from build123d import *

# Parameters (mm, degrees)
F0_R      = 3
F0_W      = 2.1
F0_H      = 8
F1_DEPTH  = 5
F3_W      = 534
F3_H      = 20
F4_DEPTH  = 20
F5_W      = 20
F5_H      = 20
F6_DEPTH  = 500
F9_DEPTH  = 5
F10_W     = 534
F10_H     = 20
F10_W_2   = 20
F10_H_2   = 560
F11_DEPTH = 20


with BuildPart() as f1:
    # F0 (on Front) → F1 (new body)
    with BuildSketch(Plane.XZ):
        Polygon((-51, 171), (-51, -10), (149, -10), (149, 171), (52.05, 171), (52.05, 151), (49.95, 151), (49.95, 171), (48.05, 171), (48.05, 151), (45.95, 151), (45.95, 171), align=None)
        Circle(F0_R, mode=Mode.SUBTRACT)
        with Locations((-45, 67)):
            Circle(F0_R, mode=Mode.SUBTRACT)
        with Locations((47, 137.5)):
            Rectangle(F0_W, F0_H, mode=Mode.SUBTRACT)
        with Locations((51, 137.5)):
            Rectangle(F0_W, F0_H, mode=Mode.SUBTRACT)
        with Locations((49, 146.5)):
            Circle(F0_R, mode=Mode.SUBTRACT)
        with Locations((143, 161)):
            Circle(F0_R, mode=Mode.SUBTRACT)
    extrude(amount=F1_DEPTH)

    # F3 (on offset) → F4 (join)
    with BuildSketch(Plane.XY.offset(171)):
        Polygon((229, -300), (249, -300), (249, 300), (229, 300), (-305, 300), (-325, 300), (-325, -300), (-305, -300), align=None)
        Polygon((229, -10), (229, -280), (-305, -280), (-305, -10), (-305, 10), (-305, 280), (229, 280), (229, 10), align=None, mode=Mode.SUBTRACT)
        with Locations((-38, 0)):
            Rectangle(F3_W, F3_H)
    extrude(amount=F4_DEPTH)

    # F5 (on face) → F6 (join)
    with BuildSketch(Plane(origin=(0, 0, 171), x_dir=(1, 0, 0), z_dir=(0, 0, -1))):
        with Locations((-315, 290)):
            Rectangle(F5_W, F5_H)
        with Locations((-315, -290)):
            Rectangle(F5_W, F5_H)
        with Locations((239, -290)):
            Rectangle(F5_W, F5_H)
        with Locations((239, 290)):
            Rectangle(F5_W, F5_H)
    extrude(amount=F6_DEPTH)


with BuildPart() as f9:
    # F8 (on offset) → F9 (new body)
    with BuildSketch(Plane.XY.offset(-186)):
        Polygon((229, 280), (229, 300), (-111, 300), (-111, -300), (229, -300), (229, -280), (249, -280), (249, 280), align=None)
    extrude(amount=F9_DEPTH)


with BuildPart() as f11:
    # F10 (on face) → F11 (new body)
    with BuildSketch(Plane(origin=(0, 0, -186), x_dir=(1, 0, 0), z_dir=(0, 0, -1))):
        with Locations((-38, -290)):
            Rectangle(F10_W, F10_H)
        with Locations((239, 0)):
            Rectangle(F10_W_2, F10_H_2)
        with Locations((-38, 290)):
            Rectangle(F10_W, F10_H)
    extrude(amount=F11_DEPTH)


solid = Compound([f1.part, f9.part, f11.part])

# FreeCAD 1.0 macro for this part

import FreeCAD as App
import Part
import Sketcher

doc = App.newDocument("Part")
body = doc.addObject("PartDesign::Body", "Body")

# Sketch on XZ plane
sketch1 = body.newObject("Sketcher::SketchObject", "Sketch")
sketch1.AttachmentSupport = (doc.getObject("XZ_Plane"), [""])
sketch1.MapMode = "FlatFace"
sketch1.addGeometry(Part.LineSegment(App.Vector(-51, 171, 0), App.Vector(-51, -10, 0)), False)
sketch1.addGeometry(Part.LineSegment(App.Vector(-51, -10, 0), App.Vector(149, -10, 0)), False)
sketch1.addGeometry(Part.LineSegment(App.Vector(149, -10, 0), App.Vector(149, 171, 0)), False)
sketch1.addGeometry(Part.LineSegment(App.Vector(149, 171, 0), App.Vector(52.05, 171, 0)), False)
sketch1.addGeometry(Part.LineSegment(App.Vector(52.05, 171, 0), App.Vector(52.05, 151, 0)), False)
sketch1.addGeometry(Part.LineSegment(App.Vector(52.05, 151, 0), App.Vector(49.95, 151, 0)), False)
sketch1.addGeometry(Part.LineSegment(App.Vector(49.95, 151, 0), App.Vector(49.95, 171, 0)), False)
sketch1.addGeometry(Part.LineSegment(App.Vector(49.95, 171, 0), App.Vector(48.05, 171, 0)), False)
sketch1.addGeometry(Part.LineSegment(App.Vector(48.05, 171, 0), App.Vector(48.05, 151, 0)), False)
sketch1.addGeometry(Part.LineSegment(App.Vector(48.05, 151, 0), App.Vector(45.95, 151, 0)), False)
sketch1.addGeometry(Part.LineSegment(App.Vector(45.95, 151, 0), App.Vector(45.95, 171, 0)), False)
sketch1.addGeometry(Part.LineSegment(App.Vector(45.95, 171, 0), App.Vector(-51, 171, 0)), False)
sketch1.addGeometry(Part.Circle(App.Vector(0, 0, 0), App.Vector(0, 0, 1), 3), False)
sketch1.addGeometry(Part.Circle(App.Vector(-45, 67, 0), App.Vector(0, 0, 1), 3), False)
sketch1.addGeometry(Part.LineSegment(App.Vector(48.05, 133.5, 0), App.Vector(45.95, 133.5, 0)), False)
sketch1.addGeometry(Part.LineSegment(App.Vector(45.95, 133.5, 0), App.Vector(45.95, 141.5, 0)), False)
sketch1.addGeometry(Part.LineSegment(App.Vector(45.95, 141.5, 0), App.Vector(48.05, 141.5, 0)), False)
sketch1.addGeometry(Part.LineSegment(App.Vector(48.05, 141.5, 0), App.Vector(48.05, 133.5, 0)), False)
sketch1.addGeometry(Part.LineSegment(App.Vector(52.05, 133.5, 0), App.Vector(49.95, 133.5, 0)), False)
sketch1.addGeometry(Part.LineSegment(App.Vector(49.95, 133.5, 0), App.Vector(49.95, 141.5, 0)), False)
sketch1.addGeometry(Part.LineSegment(App.Vector(49.95, 141.5, 0), App.Vector(52.05, 141.5, 0)), False)
sketch1.addGeometry(Part.LineSegment(App.Vector(52.05, 141.5, 0), App.Vector(52.05, 133.5, 0)), False)
sketch1.addGeometry(Part.Circle(App.Vector(49, 146.5, 0), App.Vector(0, 0, 1), 3), False)
sketch1.addGeometry(Part.Circle(App.Vector(143, 161, 0), App.Vector(0, 0, 1), 3), False)
sketch1.addConstraint(Sketcher.Constraint("Coincident", 0, 2, 1, 1))
sketch1.addConstraint(Sketcher.Constraint("Coincident", 1, 2, 2, 1))
sketch1.addConstraint(Sketcher.Constraint("Coincident", 2, 2, 3, 1))
sketch1.addConstraint(Sketcher.Constraint("Coincident", 3, 2, 4, 1))
sketch1.addConstraint(Sketcher.Constraint("Coincident", 4, 2, 5, 1))
sketch1.addConstraint(Sketcher.Constraint("Coincident", 5, 2, 6, 1))
sketch1.addConstraint(Sketcher.Constraint("Coincident", 6, 2, 7, 1))
sketch1.addConstraint(Sketcher.Constraint("Coincident", 7, 2, 8, 1))
sketch1.addConstraint(Sketcher.Constraint("Coincident", 8, 2, 9, 1))
sketch1.addConstraint(Sketcher.Constraint("Coincident", 9, 2, 10, 1))
sketch1.addConstraint(Sketcher.Constraint("Coincident", 10, 2, 11, 1))
sketch1.addConstraint(Sketcher.Constraint("Coincident", 11, 2, 0, 1))
sketch1.addConstraint(Sketcher.Constraint("Coincident", 14, 2, 15, 1))
sketch1.addConstraint(Sketcher.Constraint("Coincident", 15, 2, 16, 1))
sketch1.addConstraint(Sketcher.Constraint("Coincident", 16, 2, 17, 1))
sketch1.addConstraint(Sketcher.Constraint("Coincident", 17, 2, 14, 1))
sketch1.addConstraint(Sketcher.Constraint("Coincident", 18, 2, 19, 1))
sketch1.addConstraint(Sketcher.Constraint("Coincident", 19, 2, 20, 1))
sketch1.addConstraint(Sketcher.Constraint("Coincident", 20, 2, 21, 1))
sketch1.addConstraint(Sketcher.Constraint("Coincident", 21, 2, 18, 1))
sketch1.addConstraint(Sketcher.Constraint("Vertical", 0))
sketch1.addConstraint(Sketcher.Constraint("Horizontal", 1))
sketch1.addConstraint(Sketcher.Constraint("Vertical", 2))
sketch1.addConstraint(Sketcher.Constraint("Horizontal", 3))
sketch1.addConstraint(Sketcher.Constraint("Vertical", 4))
sketch1.addConstraint(Sketcher.Constraint("Horizontal", 5))
sketch1.addConstraint(Sketcher.Constraint("Vertical", 6))
sketch1.addConstraint(Sketcher.Constraint("Horizontal", 7))
sketch1.addConstraint(Sketcher.Constraint("Vertical", 8))
sketch1.addConstraint(Sketcher.Constraint("Horizontal", 9))
sketch1.addConstraint(Sketcher.Constraint("Vertical", 10))
sketch1.addConstraint(Sketcher.Constraint("Horizontal", 11))
sketch1.addConstraint(Sketcher.Constraint("Horizontal", 14))
sketch1.addConstraint(Sketcher.Constraint("Vertical", 15))
sketch1.addConstraint(Sketcher.Constraint("Horizontal", 16))
sketch1.addConstraint(Sketcher.Constraint("Vertical", 17))
sketch1.addConstraint(Sketcher.Constraint("Horizontal", 18))
sketch1.addConstraint(Sketcher.Constraint("Vertical", 19))
sketch1.addConstraint(Sketcher.Constraint("Horizontal", 20))
sketch1.addConstraint(Sketcher.Constraint("Vertical", 21))
sketch1.addConstraint(Sketcher.Constraint("Coincident", 12, 3, -1, 1))
sketch1.addConstraint(Sketcher.Constraint("Equal", 12, 13))
sketch1.addConstraint(Sketcher.Constraint("Equal", 13, 22))
sketch1.addConstraint(Sketcher.Constraint("Equal", 22, 23))
sketch1.addConstraint(Sketcher.Constraint("Horizontal", 3, 2, 6, 2))
sketch1.addConstraint(Sketcher.Constraint("Horizontal", 5, 2, 8, 2))
sketch1.addConstraint(Sketcher.Constraint("Horizontal", 7, 2, 10, 2))
sketch1.addConstraint(Sketcher.Constraint("Horizontal", 17, 2, 18, 2))
sketch1.addConstraint(Sketcher.Constraint("Horizontal", 16, 2, 19, 2))
sketch1.addConstraint(Sketcher.Constraint("Vertical", 10, 2, 14, 2))
sketch1.addConstraint(Sketcher.Constraint("Vertical", 8, 2, 16, 2))
sketch1.addConstraint(Sketcher.Constraint("Vertical", 6, 2, 18, 2))
sketch1.addConstraint(Sketcher.Constraint("Vertical", 4, 2, 20, 2))
sketch1.addConstraint(Sketcher.Constraint("Equal", 5, 9))
sketch1.addConstraint(Sketcher.Constraint("Equal", 3, 11))
sketch1.addConstraint(Sketcher.Constraint("Diameter", 12, 6.0))
sketch1.addConstraint(Sketcher.Constraint("DistanceX", 1, 1, 1, 2, 200.0))
sketch1.addConstraint(Sketcher.Constraint("DistanceY", 0, 2, 0, 1, 181.0))
sketch1.addConstraint(Sketcher.Constraint("DistanceY", 4, 2, 4, 1, 20.0))
sketch1.addConstraint(Sketcher.Constraint("DistanceY", 15, 1, 15, 2, 8.0))
sketch1.addConstraint(Sketcher.Constraint("DistanceX", 5, 2, 5, 1, 2.1))
sketch1.addConstraint(Sketcher.Constraint("DistanceX", 7, 2, 7, 1, 1.9))
sketch1.addConstraint(Sketcher.Constraint("DistanceX", 13, 3, -1, 1, 45.0))
sketch1.addConstraint(Sketcher.Constraint("DistanceY", -1, 1, 13, 3, 67.0))
sketch1.addConstraint(Sketcher.Constraint("DistanceX", -1, 1, 22, 3, 49.0))
sketch1.addConstraint(Sketcher.Constraint("DistanceX", -1, 1, 23, 3, 143.0))
sketch1.addConstraint(Sketcher.Constraint("DistanceY", -1, 1, 23, 3, 161.0))
sketch1.addConstraint(Sketcher.Constraint("DistanceX", 0, 2, -1, 1, 51.0))
sketch1.addConstraint(Sketcher.Constraint("DistanceY", 0, 2, -1, 1, 10.0))
sketch1.addConstraint(Sketcher.Constraint("DistanceY", 14, 2, 22, 3, 13.0))
sketch1.addConstraint(Sketcher.Constraint("DistanceY", -1, 1, 22, 3, 146.5))
pad1 = body.newObject("PartDesign::Pad", "Pad")
pad1.Profile = sketch1
pad1.Length = 5

# Sketch on XY plane
sketch2 = body.newObject("Sketcher::SketchObject", "Sketch001")
sketch2.AttachmentSupport = (doc.getObject("XY_Plane"), [""])
sketch2.MapMode = "FlatFace"
sketch2.AttachmentOffset = App.Placement(App.Vector(0, 0, 171), App.Rotation())
sketch2.addGeometry(Part.LineSegment(App.Vector(249, -300, 0), App.Vector(249, 300, 0)), False)
sketch2.addGeometry(Part.LineSegment(App.Vector(249, 300, 0), App.Vector(-325, 300, 0)), False)
sketch2.addGeometry(Part.LineSegment(App.Vector(-325, 300, 0), App.Vector(-325, -300, 0)), False)
sketch2.addGeometry(Part.LineSegment(App.Vector(-325, -300, 0), App.Vector(249, -300, 0)), False)
sketch2.addGeometry(Part.LineSegment(App.Vector(229, 280, 0), App.Vector(229, 10, 0)), False)
sketch2.addGeometry(Part.LineSegment(App.Vector(229, 10, 0), App.Vector(-305, 10, 0)), False)
sketch2.addGeometry(Part.LineSegment(App.Vector(-305, 10, 0), App.Vector(-305, 280, 0)), False)
sketch2.addGeometry(Part.LineSegment(App.Vector(-305, 280, 0), App.Vector(229, 280, 0)), False)
sketch2.addGeometry(Part.LineSegment(App.Vector(229, -10, 0), App.Vector(229, -280, 0)), False)
sketch2.addGeometry(Part.LineSegment(App.Vector(229, -280, 0), App.Vector(-305, -280, 0)), False)
sketch2.addGeometry(Part.LineSegment(App.Vector(-305, -280, 0), App.Vector(-305, -10, 0)), False)
sketch2.addGeometry(Part.LineSegment(App.Vector(-305, -10, 0), App.Vector(229, -10, 0)), False)
sketch2.addConstraint(Sketcher.Constraint("Coincident", 0, 2, 1, 1))
sketch2.addConstraint(Sketcher.Constraint("Coincident", 1, 2, 2, 1))
sketch2.addConstraint(Sketcher.Constraint("Coincident", 2, 2, 3, 1))
sketch2.addConstraint(Sketcher.Constraint("Coincident", 3, 2, 0, 1))
sketch2.addConstraint(Sketcher.Constraint("Coincident", 4, 2, 5, 1))
sketch2.addConstraint(Sketcher.Constraint("Coincident", 5, 2, 6, 1))
sketch2.addConstraint(Sketcher.Constraint("Coincident", 6, 2, 7, 1))
sketch2.addConstraint(Sketcher.Constraint("Coincident", 7, 2, 4, 1))
sketch2.addConstraint(Sketcher.Constraint("Coincident", 8, 2, 9, 1))
sketch2.addConstraint(Sketcher.Constraint("Coincident", 9, 2, 10, 1))
sketch2.addConstraint(Sketcher.Constraint("Coincident", 10, 2, 11, 1))
sketch2.addConstraint(Sketcher.Constraint("Coincident", 11, 2, 8, 1))
sketch2.addConstraint(Sketcher.Constraint("Vertical", 0))
sketch2.addConstraint(Sketcher.Constraint("Horizontal", 1))
sketch2.addConstraint(Sketcher.Constraint("Vertical", 2))
sketch2.addConstraint(Sketcher.Constraint("Horizontal", 3))
sketch2.addConstraint(Sketcher.Constraint("Vertical", 4))
sketch2.addConstraint(Sketcher.Constraint("Horizontal", 5))
sketch2.addConstraint(Sketcher.Constraint("Vertical", 6))
sketch2.addConstraint(Sketcher.Constraint("Horizontal", 7))
sketch2.addConstraint(Sketcher.Constraint("Vertical", 8))
sketch2.addConstraint(Sketcher.Constraint("Horizontal", 9))
sketch2.addConstraint(Sketcher.Constraint("Vertical", 10))
sketch2.addConstraint(Sketcher.Constraint("Horizontal", 11))
sketch2.addConstraint(Sketcher.Constraint("Symmetric", 7, 2, 8, 2, -1))
sketch2.addConstraint(Sketcher.Constraint("Symmetric", 5, 2, 10, 2, -1))
sketch2.addConstraint(Sketcher.Constraint("DistanceX", 1, 2, 1, 1, 574.0))
sketch2.addConstraint(Sketcher.Constraint("DistanceX", 5, 2, 5, 1, 534.0))
sketch2.addConstraint(Sketcher.Constraint("DistanceY", 0, 1, 0, 2, 600.0))
sketch2.addConstraint(Sketcher.Constraint("DistanceY", 4, 2, 4, 1, 270.0))
sketch2.addConstraint(Sketcher.Constraint("DistanceX", -1, 1, 0, 2, 249.0))
sketch2.addConstraint(Sketcher.Constraint("DistanceY", -1, 1, 0, 2, 300.0))
sketch2.addConstraint(Sketcher.Constraint("DistanceX", -1, 1, 4, 2, 229.0))
sketch2.addConstraint(Sketcher.Constraint("DistanceY", -1, 1, 4, 2, 10.0))
pad2 = body.newObject("PartDesign::Pad", "Pad001")
pad2.Profile = sketch2
pad2.Length = 20

# Sketch on XY plane
sketch3 = body.newObject("Sketcher::SketchObject", "Sketch002")
sketch3.AttachmentSupport = (doc.getObject("XY_Plane"), [""])
sketch3.MapMode = "FlatFace"
sketch3.AttachmentOffset = App.Placement(App.Vector(0, 0, 171), App.Rotation())
sketch3.addGeometry(Part.LineSegment(App.Vector(-325, -300, 0), App.Vector(-325, -280, 0)), False)
sketch3.addGeometry(Part.LineSegment(App.Vector(-325, -280, 0), App.Vector(-305, -280, 0)), False)
sketch3.addGeometry(Part.LineSegment(App.Vector(-305, -280, 0), App.Vector(-305, -300, 0)), False)
sketch3.addGeometry(Part.LineSegment(App.Vector(-305, -300, 0), App.Vector(-325, -300, 0)), False)
sketch3.addGeometry(Part.LineSegment(App.Vector(-325, 280, 0), App.Vector(-325, 300, 0)), False)
sketch3.addGeometry(Part.LineSegment(App.Vector(-325, 300, 0), App.Vector(-305, 300, 0)), False)
sketch3.addGeometry(Part.LineSegment(App.Vector(-305, 300, 0), App.Vector(-305, 280, 0)), False)
sketch3.addGeometry(Part.LineSegment(App.Vector(-305, 280, 0), App.Vector(-325, 280, 0)), False)
sketch3.addGeometry(Part.LineSegment(App.Vector(229, 280, 0), App.Vector(229, 300, 0)), False)
sketch3.addGeometry(Part.LineSegment(App.Vector(229, 300, 0), App.Vector(249, 300, 0)), False)
sketch3.addGeometry(Part.LineSegment(App.Vector(249, 300, 0), App.Vector(249, 280, 0)), False)
sketch3.addGeometry(Part.LineSegment(App.Vector(249, 280, 0), App.Vector(229, 280, 0)), False)
sketch3.addGeometry(Part.LineSegment(App.Vector(229, -300, 0), App.Vector(229, -280, 0)), False)
sketch3.addGeometry(Part.LineSegment(App.Vector(229, -280, 0), App.Vector(249, -280, 0)), False)
sketch3.addGeometry(Part.LineSegment(App.Vector(249, -280, 0), App.Vector(249, -300, 0)), False)
sketch3.addGeometry(Part.LineSegment(App.Vector(249, -300, 0), App.Vector(229, -300, 0)), False)
sketch3.addConstraint(Sketcher.Constraint("Coincident", 0, 2, 1, 1))
sketch3.addConstraint(Sketcher.Constraint("Coincident", 1, 2, 2, 1))
sketch3.addConstraint(Sketcher.Constraint("Coincident", 2, 2, 3, 1))
sketch3.addConstraint(Sketcher.Constraint("Coincident", 3, 2, 0, 1))
sketch3.addConstraint(Sketcher.Constraint("Coincident", 4, 2, 5, 1))
sketch3.addConstraint(Sketcher.Constraint("Coincident", 5, 2, 6, 1))
sketch3.addConstraint(Sketcher.Constraint("Coincident", 6, 2, 7, 1))
sketch3.addConstraint(Sketcher.Constraint("Coincident", 7, 2, 4, 1))
sketch3.addConstraint(Sketcher.Constraint("Coincident", 8, 2, 9, 1))
sketch3.addConstraint(Sketcher.Constraint("Coincident", 9, 2, 10, 1))
sketch3.addConstraint(Sketcher.Constraint("Coincident", 10, 2, 11, 1))
sketch3.addConstraint(Sketcher.Constraint("Coincident", 11, 2, 8, 1))
sketch3.addConstraint(Sketcher.Constraint("Coincident", 12, 2, 13, 1))
sketch3.addConstraint(Sketcher.Constraint("Coincident", 13, 2, 14, 1))
sketch3.addConstraint(Sketcher.Constraint("Coincident", 14, 2, 15, 1))
sketch3.addConstraint(Sketcher.Constraint("Coincident", 15, 2, 12, 1))
sketch3.addConstraint(Sketcher.Constraint("Vertical", 0))
sketch3.addConstraint(Sketcher.Constraint("Horizontal", 1))
sketch3.addConstraint(Sketcher.Constraint("Vertical", 2))
sketch3.addConstraint(Sketcher.Constraint("Horizontal", 3))
sketch3.addConstraint(Sketcher.Constraint("Vertical", 4))
sketch3.addConstraint(Sketcher.Constraint("Horizontal", 5))
sketch3.addConstraint(Sketcher.Constraint("Vertical", 6))
sketch3.addConstraint(Sketcher.Constraint("Horizontal", 7))
sketch3.addConstraint(Sketcher.Constraint("Vertical", 8))
sketch3.addConstraint(Sketcher.Constraint("Horizontal", 9))
sketch3.addConstraint(Sketcher.Constraint("Vertical", 10))
sketch3.addConstraint(Sketcher.Constraint("Horizontal", 11))
sketch3.addConstraint(Sketcher.Constraint("Vertical", 12))
sketch3.addConstraint(Sketcher.Constraint("Horizontal", 13))
sketch3.addConstraint(Sketcher.Constraint("Vertical", 14))
sketch3.addConstraint(Sketcher.Constraint("Horizontal", 15))
sketch3.addConstraint(Sketcher.Constraint("Symmetric", 3, 2, 4, 2, -1))
sketch3.addConstraint(Sketcher.Constraint("Symmetric", 1, 2, 6, 2, -1))
sketch3.addConstraint(Sketcher.Constraint("Symmetric", 11, 2, 12, 2, -1))
sketch3.addConstraint(Sketcher.Constraint("Symmetric", 9, 2, 14, 2, -1))
sketch3.addConstraint(Sketcher.Constraint("Horizontal", 5, 2, 8, 2))
sketch3.addConstraint(Sketcher.Constraint("Horizontal", 7, 2, 10, 2))
sketch3.addConstraint(Sketcher.Constraint("Equal", 7, 9))
sketch3.addConstraint(Sketcher.Constraint("Equal", 15, 0))
sketch3.addConstraint(Sketcher.Constraint("DistanceX", 1, 1, 1, 2, 20.0))
sketch3.addConstraint(Sketcher.Constraint("DistanceX", 0, 2, -1, 1, 325.0))
sketch3.addConstraint(Sketcher.Constraint("DistanceY", 0, 2, -1, 1, 280.0))
sketch3.addConstraint(Sketcher.Constraint("DistanceX", -1, 1, 8, 2, 229.0))
pad3 = body.newObject("PartDesign::Pad", "Pad002")
pad3.Profile = sketch3
pad3.Length = 500
pad3.Reversed = True
body2 = doc.addObject("PartDesign::Body", "Body001")

# Sketch on XY plane
sketch4 = body2.newObject("Sketcher::SketchObject", "Sketch003")
sketch4.AttachmentSupport = (doc.getObject("XY_Plane001"), [""])
sketch4.MapMode = "FlatFace"
sketch4.AttachmentOffset = App.Placement(App.Vector(0, 0, -186), App.Rotation())
sketch4.addGeometry(Part.LineSegment(App.Vector(229, 280, 0), App.Vector(229, 300, 0)), False)
sketch4.addGeometry(Part.LineSegment(App.Vector(229, 300, 0), App.Vector(-111, 300, 0)), False)
sketch4.addGeometry(Part.LineSegment(App.Vector(-111, 300, 0), App.Vector(-111, -300, 0)), False)
sketch4.addGeometry(Part.LineSegment(App.Vector(-111, -300, 0), App.Vector(229, -300, 0)), False)
sketch4.addGeometry(Part.LineSegment(App.Vector(229, -300, 0), App.Vector(229, -280, 0)), False)
sketch4.addGeometry(Part.LineSegment(App.Vector(229, -280, 0), App.Vector(249, -280, 0)), False)
sketch4.addGeometry(Part.LineSegment(App.Vector(249, -280, 0), App.Vector(249, 280, 0)), False)
sketch4.addGeometry(Part.LineSegment(App.Vector(249, 280, 0), App.Vector(229, 280, 0)), False)
sketch4.addConstraint(Sketcher.Constraint("Coincident", 0, 2, 1, 1))
sketch4.addConstraint(Sketcher.Constraint("Coincident", 1, 2, 2, 1))
sketch4.addConstraint(Sketcher.Constraint("Coincident", 2, 2, 3, 1))
sketch4.addConstraint(Sketcher.Constraint("Coincident", 3, 2, 4, 1))
sketch4.addConstraint(Sketcher.Constraint("Coincident", 4, 2, 5, 1))
sketch4.addConstraint(Sketcher.Constraint("Coincident", 5, 2, 6, 1))
sketch4.addConstraint(Sketcher.Constraint("Coincident", 6, 2, 7, 1))
sketch4.addConstraint(Sketcher.Constraint("Coincident", 7, 2, 0, 1))
sketch4.addConstraint(Sketcher.Constraint("Vertical", 0))
sketch4.addConstraint(Sketcher.Constraint("Horizontal", 1))
sketch4.addConstraint(Sketcher.Constraint("Vertical", 2))
sketch4.addConstraint(Sketcher.Constraint("Horizontal", 3))
sketch4.addConstraint(Sketcher.Constraint("Vertical", 4))
sketch4.addConstraint(Sketcher.Constraint("Horizontal", 5))
sketch4.addConstraint(Sketcher.Constraint("Vertical", 6))
sketch4.addConstraint(Sketcher.Constraint("Horizontal", 7))
sketch4.addConstraint(Sketcher.Constraint("Symmetric", 0, 2, 3, 2, -1))
sketch4.addConstraint(Sketcher.Constraint("Equal", 7, 0))
sketch4.addConstraint(Sketcher.Constraint("Equal", 0, 4))
sketch4.addConstraint(Sketcher.Constraint("DistanceX", 1, 2, 1, 1, 340.0))
sketch4.addConstraint(Sketcher.Constraint("DistanceX", 5, 1, 5, 2, 20.0))
sketch4.addConstraint(Sketcher.Constraint("DistanceY", 2, 2, 2, 1, 600.0))
sketch4.addConstraint(Sketcher.Constraint("DistanceX", -1, 1, 0, 2, 229.0))
pad4 = body2.newObject("PartDesign::Pad", "Pad003")
pad4.Profile = sketch4
pad4.Length = 5
body3 = doc.addObject("PartDesign::Body", "Body002")
body3.AllowCompound = True

# Sketch on XY plane
sketch5 = body3.newObject("Sketcher::SketchObject", "Sketch004")
sketch5.AttachmentSupport = (doc.getObject("XY_Plane002"), [""])
sketch5.MapMode = "FlatFace"
sketch5.AttachmentOffset = App.Placement(App.Vector(0, 0, -186), App.Rotation())
sketch5.addGeometry(Part.LineSegment(App.Vector(-305, 280, 0), App.Vector(-305, 300, 0)), False)
sketch5.addGeometry(Part.LineSegment(App.Vector(-305, 300, 0), App.Vector(229, 300, 0)), False)
sketch5.addGeometry(Part.LineSegment(App.Vector(229, 300, 0), App.Vector(229, 280, 0)), False)
sketch5.addGeometry(Part.LineSegment(App.Vector(229, 280, 0), App.Vector(-305, 280, 0)), False)
sketch5.addGeometry(Part.LineSegment(App.Vector(229, -280, 0), App.Vector(229, 280, 0)), False)
sketch5.addGeometry(Part.LineSegment(App.Vector(229, 280, 0), App.Vector(249, 280, 0)), False)
sketch5.addGeometry(Part.LineSegment(App.Vector(249, 280, 0), App.Vector(249, -280, 0)), False)
sketch5.addGeometry(Part.LineSegment(App.Vector(249, -280, 0), App.Vector(229, -280, 0)), False)
sketch5.addGeometry(Part.LineSegment(App.Vector(-305, -300, 0), App.Vector(-305, -280, 0)), False)
sketch5.addGeometry(Part.LineSegment(App.Vector(-305, -280, 0), App.Vector(229, -280, 0)), False)
sketch5.addGeometry(Part.LineSegment(App.Vector(229, -280, 0), App.Vector(229, -300, 0)), False)
sketch5.addGeometry(Part.LineSegment(App.Vector(229, -300, 0), App.Vector(-305, -300, 0)), False)
sketch5.addConstraint(Sketcher.Constraint("Coincident", 0, 2, 1, 1))
sketch5.addConstraint(Sketcher.Constraint("Coincident", 1, 2, 2, 1))
sketch5.addConstraint(Sketcher.Constraint("Coincident", 2, 2, 3, 1))
sketch5.addConstraint(Sketcher.Constraint("Coincident", 3, 2, 0, 1))
sketch5.addConstraint(Sketcher.Constraint("Coincident", 4, 2, 5, 1))
sketch5.addConstraint(Sketcher.Constraint("Coincident", 5, 2, 6, 1))
sketch5.addConstraint(Sketcher.Constraint("Coincident", 6, 2, 7, 1))
sketch5.addConstraint(Sketcher.Constraint("Coincident", 7, 2, 4, 1))
sketch5.addConstraint(Sketcher.Constraint("Coincident", 8, 2, 9, 1))
sketch5.addConstraint(Sketcher.Constraint("Coincident", 9, 2, 10, 1))
sketch5.addConstraint(Sketcher.Constraint("Coincident", 10, 2, 11, 1))
sketch5.addConstraint(Sketcher.Constraint("Coincident", 11, 2, 8, 1))
sketch5.addConstraint(Sketcher.Constraint("Vertical", 0))
sketch5.addConstraint(Sketcher.Constraint("Horizontal", 1))
sketch5.addConstraint(Sketcher.Constraint("Vertical", 2))
sketch5.addConstraint(Sketcher.Constraint("Horizontal", 3))
sketch5.addConstraint(Sketcher.Constraint("Vertical", 4))
sketch5.addConstraint(Sketcher.Constraint("Horizontal", 5))
sketch5.addConstraint(Sketcher.Constraint("Vertical", 6))
sketch5.addConstraint(Sketcher.Constraint("Horizontal", 7))
sketch5.addConstraint(Sketcher.Constraint("Vertical", 8))
sketch5.addConstraint(Sketcher.Constraint("Horizontal", 9))
sketch5.addConstraint(Sketcher.Constraint("Vertical", 10))
sketch5.addConstraint(Sketcher.Constraint("Horizontal", 11))
sketch5.addConstraint(Sketcher.Constraint("Coincident", 4, 2, 2, 2))
sketch5.addConstraint(Sketcher.Constraint("Coincident", 9, 2, 7, 2))
sketch5.addConstraint(Sketcher.Constraint("Symmetric", 3, 2, 8, 2, -1))
sketch5.addConstraint(Sketcher.Constraint("Equal", 7, 0))
sketch5.addConstraint(Sketcher.Constraint("Equal", 2, 8))
sketch5.addConstraint(Sketcher.Constraint("DistanceX", 1, 1, 1, 2, 534.0))
sketch5.addConstraint(Sketcher.Constraint("DistanceX", 5, 1, 5, 2, 20.0))
sketch5.addConstraint(Sketcher.Constraint("DistanceY", 4, 1, 4, 2, 560.0))
sketch5.addConstraint(Sketcher.Constraint("DistanceX", 0, 2, -1, 1, 305.0))
pad5 = body3.newObject("PartDesign::Pad", "Pad004")
pad5.Profile = sketch5
pad5.Length = 20
pad5.Reversed = True

doc.recompute()
